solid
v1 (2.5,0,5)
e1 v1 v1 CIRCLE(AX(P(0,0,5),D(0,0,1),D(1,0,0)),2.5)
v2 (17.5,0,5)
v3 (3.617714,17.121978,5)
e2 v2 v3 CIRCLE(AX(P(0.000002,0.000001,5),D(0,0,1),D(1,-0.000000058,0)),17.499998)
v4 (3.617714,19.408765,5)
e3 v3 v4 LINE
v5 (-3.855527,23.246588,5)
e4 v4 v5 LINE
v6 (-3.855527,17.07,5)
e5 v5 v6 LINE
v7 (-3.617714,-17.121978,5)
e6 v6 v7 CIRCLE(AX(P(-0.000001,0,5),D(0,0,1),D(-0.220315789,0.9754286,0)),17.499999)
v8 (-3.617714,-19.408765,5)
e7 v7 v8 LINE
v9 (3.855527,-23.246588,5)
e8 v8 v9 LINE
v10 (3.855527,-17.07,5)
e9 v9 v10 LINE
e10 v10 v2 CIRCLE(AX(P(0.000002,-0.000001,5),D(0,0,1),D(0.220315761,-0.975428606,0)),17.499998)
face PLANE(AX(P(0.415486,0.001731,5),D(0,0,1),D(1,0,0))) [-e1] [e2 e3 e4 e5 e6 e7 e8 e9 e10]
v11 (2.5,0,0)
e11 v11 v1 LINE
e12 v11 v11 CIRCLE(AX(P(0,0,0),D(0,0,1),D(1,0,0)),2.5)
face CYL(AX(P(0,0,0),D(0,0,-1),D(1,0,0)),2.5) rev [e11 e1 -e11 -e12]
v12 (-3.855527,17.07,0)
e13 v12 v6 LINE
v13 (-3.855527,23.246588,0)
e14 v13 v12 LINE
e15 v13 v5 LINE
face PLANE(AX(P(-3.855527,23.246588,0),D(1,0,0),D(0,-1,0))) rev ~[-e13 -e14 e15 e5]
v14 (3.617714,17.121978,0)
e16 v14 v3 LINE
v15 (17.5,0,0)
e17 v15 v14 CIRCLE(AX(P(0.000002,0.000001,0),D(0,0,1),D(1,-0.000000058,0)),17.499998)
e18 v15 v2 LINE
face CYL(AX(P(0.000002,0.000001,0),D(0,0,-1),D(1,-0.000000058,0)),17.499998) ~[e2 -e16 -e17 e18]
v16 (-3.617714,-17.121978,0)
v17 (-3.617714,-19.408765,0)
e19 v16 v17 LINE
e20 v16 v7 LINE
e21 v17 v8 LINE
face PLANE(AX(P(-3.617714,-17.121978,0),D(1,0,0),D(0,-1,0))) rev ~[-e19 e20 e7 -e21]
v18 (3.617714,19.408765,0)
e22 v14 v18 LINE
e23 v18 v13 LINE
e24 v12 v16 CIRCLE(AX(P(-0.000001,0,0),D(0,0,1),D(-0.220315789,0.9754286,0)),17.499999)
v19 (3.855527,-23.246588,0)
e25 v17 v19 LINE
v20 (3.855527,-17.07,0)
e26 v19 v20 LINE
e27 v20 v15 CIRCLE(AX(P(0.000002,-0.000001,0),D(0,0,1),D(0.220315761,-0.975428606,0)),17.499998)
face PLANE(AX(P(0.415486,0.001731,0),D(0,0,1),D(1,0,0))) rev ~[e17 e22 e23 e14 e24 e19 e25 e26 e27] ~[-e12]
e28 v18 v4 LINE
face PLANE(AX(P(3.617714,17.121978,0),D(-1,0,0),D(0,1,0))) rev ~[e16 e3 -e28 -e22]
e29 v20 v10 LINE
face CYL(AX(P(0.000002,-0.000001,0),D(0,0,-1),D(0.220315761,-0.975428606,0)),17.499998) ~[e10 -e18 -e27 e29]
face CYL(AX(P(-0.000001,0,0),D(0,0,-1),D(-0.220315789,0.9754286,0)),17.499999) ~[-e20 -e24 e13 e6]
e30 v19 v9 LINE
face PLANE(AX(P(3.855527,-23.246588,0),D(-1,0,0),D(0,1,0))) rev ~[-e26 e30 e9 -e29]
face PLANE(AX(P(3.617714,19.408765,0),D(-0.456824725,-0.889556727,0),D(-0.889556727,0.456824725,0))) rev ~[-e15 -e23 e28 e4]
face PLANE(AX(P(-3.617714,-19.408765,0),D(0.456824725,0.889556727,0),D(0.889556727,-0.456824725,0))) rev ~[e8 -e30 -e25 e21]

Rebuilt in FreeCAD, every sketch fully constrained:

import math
import FreeCAD as App
import Part
import Sketcher

doc = App.newDocument("Part")
body = doc.addObject("PartDesign::Body", "Body")

sketch1 = body.newObject("Sketcher::SketchObject", "Sketch")
sketch1.AttachmentSupport = (doc.getObject("XY_Plane"), [""])
sketch1.MapMode = "FlatFace"
sketch1.addGeometry(Part.ArcOfCircle(Part.Circle(App.Vector(0, 0, 0), App.Vector(0, 0, 1), 17.5), math.radians(-77), math.radians(0)), False)
sketch1.addGeometry(Part.ArcOfCircle(Part.Circle(App.Vector(0, 0, 0), App.Vector(0, 0, 1), 17.5), math.radians(0), math.radians(78)), False)
sketch1.addGeometry(Part.LineSegment(App.Vector(3.6, 17.1, 0), App.Vector(3.6, 19.4, 0)), False)
sketch1.addGeometry(Part.LineSegment(App.Vector(3.6, 19.4, 0), App.Vector(-3.9, 23.2, 0)), False)
sketch1.addGeometry(Part.LineSegment(App.Vector(-3.9, 23.2, 0), App.Vector(-3.9, 17.1, 0)), False)
sketch1.addGeometry(Part.ArcOfCircle(Part.Circle(App.Vector(0, 0, 0), App.Vector(0, 0, 1), 17.5), math.radians(103), math.radians(258)), False)
sketch1.addGeometry(Part.LineSegment(App.Vector(-3.6, -17.1, 0), App.Vector(-3.6, -19.4, 0)), False)
sketch1.addGeometry(Part.LineSegment(App.Vector(-3.6, -19.4, 0), App.Vector(3.9, -23.2, 0)), False)
sketch1.addGeometry(Part.LineSegment(App.Vector(3.9, -23.2, 0), App.Vector(3.9, -17.1, 0)), False)
sketch1.addGeometry(Part.Circle(App.Vector(0, 0, 0), App.Vector(0, 0, 1), 2.5), False)
sketch1.addConstraint(Sketcher.Constraint("Tangent", 0, 2, 1, 1))
sketch1.addConstraint(Sketcher.Constraint("Coincident", 1, 2, 2, 1))
sketch1.addConstraint(Sketcher.Constraint("Coincident", 2, 2, 3, 1))
sketch1.addConstraint(Sketcher.Constraint("Coincident", 3, 2, 4, 1))
sketch1.addConstraint(Sketcher.Constraint("Coincident", 4, 2, 5, 1))
sketch1.addConstraint(Sketcher.Constraint("Coincident", 5, 2, 6, 1))
sketch1.addConstraint(Sketcher.Constraint("Coincident", 6, 2, 7, 1))
sketch1.addConstraint(Sketcher.Constraint("Coincident", 7, 2, 8, 1))
sketch1.addConstraint(Sketcher.Constraint("Coincident", 8, 2, 0, 1))
sketch1.addConstraint(Sketcher.Constraint("Vertical", 2))
sketch1.addConstraint(Sketcher.Constraint("Vertical", 4))
sketch1.addConstraint(Sketcher.Constraint("Vertical", 6))
sketch1.addConstraint(Sketcher.Constraint("Vertical", 8))
sketch1.addConstraint(Sketcher.Constraint("Coincident", 0, 3, -1, 1))
sketch1.addConstraint(Sketcher.Constraint("Coincident", 5, 3, -1, 1))
sketch1.addConstraint(Sketcher.Constraint("Coincident", 9, 3, -1, 1))
sketch1.addConstraint(Sketcher.Constraint("Equal", 0, 1))
sketch1.addConstraint(Sketcher.Constraint("Equal", 1, 5))
sketch1.addConstraint(Sketcher.Constraint("Symmetric", 2, 2, 6, 2, -1, 1))
sketch1.addConstraint(Sketcher.Constraint("Symmetric", 3, 2, 7, 2, -1, 1))
sketch1.addConstraint(Sketcher.Constraint("PointOnObject", 0, 2, -1))
sketch1.addConstraint(Sketcher.Constraint("Diameter", 9, 5.0))
sketch1.addConstraint(Sketcher.Constraint("Radius", 0, 17.499998))
sketch1.addConstraint(Sketcher.Constraint("DistanceY", -1, 1, 4, 2, 17.07))
sketch1.addConstraint(Sketcher.Constraint("DistanceY", 2, 1, 2, 2, 2.286787))
sketch1.addConstraint(Sketcher.Constraint("DistanceY", 4, 2, 4, 1, 6.176588))
sketch1.addConstraint(Sketcher.Constraint("DistanceY", -1, 1, 1, 2, 17.121978))
pad1 = body.newObject("PartDesign::Pad", "Pad")
pad1.Profile = sketch1
pad1.Length = 5

doc.recompute()
